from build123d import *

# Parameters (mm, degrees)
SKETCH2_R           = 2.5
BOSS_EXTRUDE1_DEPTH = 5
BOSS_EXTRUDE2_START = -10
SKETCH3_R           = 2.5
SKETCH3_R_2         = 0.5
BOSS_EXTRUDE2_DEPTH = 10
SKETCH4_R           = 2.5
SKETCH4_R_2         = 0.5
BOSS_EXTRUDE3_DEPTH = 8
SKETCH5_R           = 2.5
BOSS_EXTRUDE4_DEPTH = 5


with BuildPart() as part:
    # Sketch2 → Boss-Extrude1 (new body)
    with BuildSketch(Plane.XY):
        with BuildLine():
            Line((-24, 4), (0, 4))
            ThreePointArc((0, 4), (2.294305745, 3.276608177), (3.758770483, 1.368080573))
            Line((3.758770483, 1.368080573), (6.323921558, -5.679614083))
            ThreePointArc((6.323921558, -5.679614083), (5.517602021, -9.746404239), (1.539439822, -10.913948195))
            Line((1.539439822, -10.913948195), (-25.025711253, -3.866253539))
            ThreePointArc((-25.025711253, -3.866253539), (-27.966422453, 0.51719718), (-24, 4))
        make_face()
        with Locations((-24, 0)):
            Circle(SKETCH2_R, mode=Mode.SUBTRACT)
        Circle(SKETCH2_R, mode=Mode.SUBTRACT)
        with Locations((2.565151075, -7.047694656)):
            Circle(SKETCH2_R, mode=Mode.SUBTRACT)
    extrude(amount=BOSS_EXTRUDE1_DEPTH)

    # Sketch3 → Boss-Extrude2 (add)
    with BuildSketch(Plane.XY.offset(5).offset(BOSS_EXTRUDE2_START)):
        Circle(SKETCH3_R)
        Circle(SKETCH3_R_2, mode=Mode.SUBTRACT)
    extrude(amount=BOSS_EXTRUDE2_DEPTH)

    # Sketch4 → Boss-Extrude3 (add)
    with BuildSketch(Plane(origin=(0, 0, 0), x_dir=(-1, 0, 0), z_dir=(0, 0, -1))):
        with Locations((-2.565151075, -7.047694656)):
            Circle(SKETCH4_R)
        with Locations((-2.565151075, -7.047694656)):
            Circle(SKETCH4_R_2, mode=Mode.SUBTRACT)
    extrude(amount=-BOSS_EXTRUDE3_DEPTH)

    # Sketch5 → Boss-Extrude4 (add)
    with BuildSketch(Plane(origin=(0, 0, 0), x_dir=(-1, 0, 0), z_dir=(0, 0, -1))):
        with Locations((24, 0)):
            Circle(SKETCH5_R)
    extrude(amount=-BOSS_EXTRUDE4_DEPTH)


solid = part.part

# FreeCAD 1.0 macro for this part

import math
import FreeCAD as App
import Part
import Sketcher

V = App.Vector
Q = App.Units.Quantity

doc = App.newDocument("Part")
body = doc.addObject("PartDesign::Body", "Body")

# Sketch on XY plane
sketch1 = body.newObject("Sketcher::SketchObject", "Sketch")
sketch1.AttachmentSupport = (doc.getObject("XY_Plane"), [""])
sketch1.MapMode = "FlatFace"
sketch1.addGeometry([
    Part.LineSegment(V(0, 4, 0), V(-24, 4, 0)),  # 0
    Part.ArcOfCircle(Part.Circle(V(-24, 0, 0), V(0, 0, 1), 4), math.radians(90), math.radians(255)),  # 1
    Part.LineSegment(V(-25, -3.9, 0), V(1.5, -10.9, 0)),  # 2
    Part.ArcOfCircle(Part.Circle(V(2.6, -7, 0), V(0, 0, 1), 4), math.radians(-105), math.radians(20)),  # 3
    Part.LineSegment(V(6.3, -5.7, 0), V(3.8, 1.4, 0)),  # 4
    Part.ArcOfCircle(Part.Circle(V(0, 0, 0), V(0, 0, 1), 4), math.radians(20), math.radians(90)),  # 5
    Part.Circle(V(2.6, -7, 0), V(0, 0, 1), 2.5),  # 6
    Part.Circle(V(0, 0, 0), V(0, 0, 1), 2.5),  # 7
    Part.Circle(V(-24, 0, 0), V(0, 0, 1), 2.5),  # 8
], False)
sketch1.addConstraint([
    Sketcher.Constraint("Tangent", 0, 2, 1, 1),
    Sketcher.Constraint("Tangent", 1, 2, 2, 1),
    Sketcher.Constraint("Tangent", 2, 2, 3, 1),
    Sketcher.Constraint("Tangent", 3, 2, 4, 1),
    Sketcher.Constraint("Tangent", 4, 2, 5, 1),
    Sketcher.Constraint("Tangent", 5, 2, 0, 1),
    Sketcher.Constraint("Horizontal", 0),
    Sketcher.Constraint("Coincident", 5, 3, -1, 1),
    Sketcher.Constraint("Coincident", 7, 3, -1, 1),
    Sketcher.Constraint("Coincident", 6, 3, 3, 3),
    Sketcher.Constraint("Coincident", 8, 3, 1, 3),
    Sketcher.Constraint("Equal", 1, 3),
    Sketcher.Constraint("Equal", 3, 5),
    Sketcher.Constraint("Equal", 6, 7),
    Sketcher.Constraint("Equal", 7, 8),
    Sketcher.Constraint("Diameter", 6, 5.0),
    Sketcher.Constraint("Radius", 1, 4.0),
    Sketcher.Constraint("DistanceX", 0, 2, 0, 1, 24.0),
    Sketcher.Constraint("Angle", 4, Q("110 deg")),
    Sketcher.Constraint("Distance", 4, 7.5),
])
pad1 = body.newObject("PartDesign::Pad", "Pad")
pad1.Profile = sketch1
pad1.Length = 5

# Sketch on XY plane
sketch2 = body.newObject("Sketcher::SketchObject", "Sketch001")
sketch2.AttachmentSupport = (doc.getObject("XY_Plane"), [""])
sketch2.MapMode = "FlatFace"
sketch2.AttachmentOffset = App.Placement(V(0, 0, -5), App.Rotation())
sketch2.addGeometry([
    Part.Circle(V(0, 0, 0), V(0, 0, 1), 2.5),
    Part.Circle(V(0, 0, 0), V(0, 0, 1), 0.5),
], False)
sketch2.addConstraint([
    Sketcher.Constraint("Coincident", 0, 3, -1, 1),
    Sketcher.Constraint("Coincident", 1, 3, -1, 1),
    Sketcher.Constraint("Diameter", 0, 5.0),
    Sketcher.Constraint("Diameter", 1, 1.0),
])
pad2 = body.newObject("PartDesign::Pad", "Pad001")
pad2.Profile = sketch2
pad2.Length = 10

# Sketch on XY plane
sketch3 = body.newObject("Sketcher::SketchObject", "Sketch002")
sketch3.AttachmentSupport = (doc.getObject("XY_Plane"), [""])
sketch3.MapMode = "FlatFace"
sketch3.addGeometry([
    Part.Circle(V(2.6, -7, 0), V(0, 0, 1), 2.5),
    Part.Circle(V(2.6, -7, 0), V(0, 0, 1), 0.5),
], False)
sketch3.addConstraint([
    Sketcher.Constraint("Coincident", 1, 3, 0, 3),
    Sketcher.Constraint("Diameter", 0, 5.0),
    Sketcher.Constraint("Diameter", 1, 1.0),
    Sketcher.Constraint("DistanceX", -1, 1, 0, 3, 2.565151),
    Sketcher.Constraint("DistanceY", 0, 3, -1, 1, 7.047695),
])
pad3 = body.newObject("PartDesign::Pad", "Pad002")
pad3.Profile = sketch3
pad3.Length = 8

# Sketch on XY plane
sketch4 = body.newObject("Sketcher::SketchObject", "Sketch003")
sketch4.AttachmentSupport = (doc.getObject("XY_Plane"), [""])
sketch4.MapMode = "FlatFace"
sketch4.addGeometry(Part.Circle(V(-24, 0, 0), V(0, 0, 1), 2.5), False)
sketch4.addConstraint([
    Sketcher.Constraint("PointOnObject", 0, 3, -1),
    Sketcher.Constraint("Diameter", 0, 5.0),
    Sketcher.Constraint("DistanceX", 0, 3, -1, 1, 24.0),
])
pad4 = body.newObject("PartDesign::Pad", "Pad003")
pad4.Profile = sketch4
pad4.Length = 5

doc.recompute()
